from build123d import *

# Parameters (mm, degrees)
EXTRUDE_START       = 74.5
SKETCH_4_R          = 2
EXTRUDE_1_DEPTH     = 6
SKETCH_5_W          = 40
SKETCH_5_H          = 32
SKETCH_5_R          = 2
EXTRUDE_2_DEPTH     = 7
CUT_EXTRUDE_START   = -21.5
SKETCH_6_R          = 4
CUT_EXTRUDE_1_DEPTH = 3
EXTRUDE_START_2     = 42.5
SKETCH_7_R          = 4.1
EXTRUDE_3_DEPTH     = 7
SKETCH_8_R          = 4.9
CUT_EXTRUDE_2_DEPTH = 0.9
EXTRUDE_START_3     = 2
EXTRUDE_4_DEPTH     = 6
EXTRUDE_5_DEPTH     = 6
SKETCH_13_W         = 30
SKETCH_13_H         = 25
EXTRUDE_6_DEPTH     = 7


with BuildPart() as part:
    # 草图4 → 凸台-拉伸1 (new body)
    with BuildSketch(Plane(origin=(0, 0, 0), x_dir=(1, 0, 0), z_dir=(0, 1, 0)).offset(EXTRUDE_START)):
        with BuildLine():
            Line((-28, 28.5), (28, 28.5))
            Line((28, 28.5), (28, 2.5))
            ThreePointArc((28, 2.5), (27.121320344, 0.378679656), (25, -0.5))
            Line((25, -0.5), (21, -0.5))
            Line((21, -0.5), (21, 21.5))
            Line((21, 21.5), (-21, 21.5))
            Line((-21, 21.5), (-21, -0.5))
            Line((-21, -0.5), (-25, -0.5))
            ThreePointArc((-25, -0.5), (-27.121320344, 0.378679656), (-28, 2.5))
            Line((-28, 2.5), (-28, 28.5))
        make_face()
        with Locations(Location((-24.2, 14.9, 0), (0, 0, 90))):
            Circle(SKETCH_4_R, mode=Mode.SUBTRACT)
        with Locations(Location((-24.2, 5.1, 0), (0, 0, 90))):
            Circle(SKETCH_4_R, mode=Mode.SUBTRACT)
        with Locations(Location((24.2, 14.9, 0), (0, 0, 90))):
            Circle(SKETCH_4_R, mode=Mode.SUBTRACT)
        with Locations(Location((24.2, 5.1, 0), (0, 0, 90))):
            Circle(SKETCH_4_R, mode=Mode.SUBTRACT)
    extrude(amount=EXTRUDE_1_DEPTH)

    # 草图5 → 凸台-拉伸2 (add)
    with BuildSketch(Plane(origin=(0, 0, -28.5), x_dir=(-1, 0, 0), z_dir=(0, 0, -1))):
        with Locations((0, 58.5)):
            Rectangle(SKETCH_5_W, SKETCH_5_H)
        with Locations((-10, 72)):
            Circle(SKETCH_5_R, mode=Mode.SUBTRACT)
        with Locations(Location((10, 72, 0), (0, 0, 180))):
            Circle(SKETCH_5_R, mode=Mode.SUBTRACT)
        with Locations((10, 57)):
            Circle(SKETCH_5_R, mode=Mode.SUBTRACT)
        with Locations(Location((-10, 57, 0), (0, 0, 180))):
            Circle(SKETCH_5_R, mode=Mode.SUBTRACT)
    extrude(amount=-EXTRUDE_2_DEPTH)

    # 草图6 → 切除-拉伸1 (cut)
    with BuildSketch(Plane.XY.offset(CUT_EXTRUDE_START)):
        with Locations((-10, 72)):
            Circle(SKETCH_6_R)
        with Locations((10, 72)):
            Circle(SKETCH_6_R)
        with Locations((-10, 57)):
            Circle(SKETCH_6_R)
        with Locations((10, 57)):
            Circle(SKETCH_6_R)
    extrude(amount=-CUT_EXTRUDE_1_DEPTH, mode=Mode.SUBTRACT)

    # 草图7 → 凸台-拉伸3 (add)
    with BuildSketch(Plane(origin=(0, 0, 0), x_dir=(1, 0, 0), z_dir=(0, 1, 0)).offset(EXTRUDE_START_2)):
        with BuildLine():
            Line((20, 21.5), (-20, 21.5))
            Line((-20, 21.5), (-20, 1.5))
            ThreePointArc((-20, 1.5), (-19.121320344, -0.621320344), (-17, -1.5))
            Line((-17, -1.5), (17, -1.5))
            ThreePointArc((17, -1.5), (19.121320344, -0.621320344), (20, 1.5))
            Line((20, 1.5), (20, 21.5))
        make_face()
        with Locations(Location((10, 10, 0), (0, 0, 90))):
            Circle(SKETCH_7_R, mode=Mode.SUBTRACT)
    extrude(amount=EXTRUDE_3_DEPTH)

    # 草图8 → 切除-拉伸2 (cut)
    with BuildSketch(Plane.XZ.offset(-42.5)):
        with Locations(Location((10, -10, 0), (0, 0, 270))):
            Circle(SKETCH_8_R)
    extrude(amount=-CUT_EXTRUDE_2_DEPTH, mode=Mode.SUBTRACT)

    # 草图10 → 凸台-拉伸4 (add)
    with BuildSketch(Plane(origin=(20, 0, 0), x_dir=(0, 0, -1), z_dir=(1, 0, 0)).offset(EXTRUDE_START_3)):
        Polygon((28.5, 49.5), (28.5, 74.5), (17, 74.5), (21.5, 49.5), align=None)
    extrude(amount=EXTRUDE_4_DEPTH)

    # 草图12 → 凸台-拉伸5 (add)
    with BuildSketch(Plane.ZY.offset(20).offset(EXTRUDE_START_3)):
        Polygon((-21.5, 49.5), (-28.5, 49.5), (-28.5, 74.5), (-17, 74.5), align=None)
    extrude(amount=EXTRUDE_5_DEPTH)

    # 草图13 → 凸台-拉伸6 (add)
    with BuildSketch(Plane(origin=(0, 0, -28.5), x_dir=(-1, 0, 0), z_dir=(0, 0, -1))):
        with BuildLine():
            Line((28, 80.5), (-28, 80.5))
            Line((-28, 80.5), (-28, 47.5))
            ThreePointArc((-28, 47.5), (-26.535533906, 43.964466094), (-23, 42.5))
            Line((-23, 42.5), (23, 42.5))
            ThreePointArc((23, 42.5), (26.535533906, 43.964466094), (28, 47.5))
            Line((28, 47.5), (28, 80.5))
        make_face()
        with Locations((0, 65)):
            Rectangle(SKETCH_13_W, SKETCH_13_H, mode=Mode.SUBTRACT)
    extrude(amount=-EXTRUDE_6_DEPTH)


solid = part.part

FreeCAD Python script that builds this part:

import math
import FreeCAD as App
import Part
import Sketcher

V = App.Vector


def add_polygon(sketch, points):
    """Adds a closed chain of lines whose ends are joined by coincident constraints."""
    first, n = sketch.GeometryCount, len(points)
    for a, b in zip(points, points[1:] + points[:1]):
        sketch.addGeometry(Part.LineSegment(App.Vector(*a, 0), App.Vector(*b, 0)), False)
    for i in range(n):
        sketch.addConstraint(Sketcher.Constraint("Coincident", first + i, 2, first + (i + 1) % n, 1))

doc = App.newDocument("Part")
params = doc.addObject("Spreadsheet::Sheet", "Params")
for row, (alias, value) in enumerate([
    ("sketch1_diameter", "4 mm"),
    ("sketch1_radius", "3 mm"),
    ("sketch1_width", "56 mm"),
    ("sketch1_width2", "4 mm"),
    ("sketch1_height", "26 mm"),
    ("pad1_length", "6 mm"),
    ("sketch2_diameter", "4 mm"),
    ("sketch2_width", "40 mm"),
    ("sketch2_height", "32 mm"),
    ("pad2_length", "7 mm"),
    ("sketch3_diameter", "8 mm"),
    ("pocket1_length", "3 mm"),
    ("sketch4_radius", "3 mm"),
    ("sketch4_diameter", "8.2 mm"),
    ("sketch4_width", "40 mm"),
    ("sketch4_height", "20 mm"),
    ("pad3_length", "7 mm"),
    ("sketch5_diameter", "9.8 mm"),
    ("pocket2_length", "0.9 mm"),
    ("sketch6_width", "25 mm"),
    ("sketch6_height", "7 mm"),
    ("sketch6_height2", "11.5 mm"),
    ("pad4_length", "6 mm"),
    ("sketch7_width", "25 mm"),
    ("sketch7_height", "7 mm"),
    ("sketch7_height2", "11.5 mm"),
    ("pad5_length", "6 mm"),
    ("sketch8_radius", "5 mm"),
    ("sketch8_width", "56 mm"),
    ("sketch8_width2", "30 mm"),
    ("sketch8_height", "33 mm"),
    ("sketch8_height2", "25 mm"),
    ("pad6_length", "7 mm"),
], start=1):
    params.set(f"A{row}", alias)
    params.set(f"B{row}", "=" + value)
    params.setAlias(f"B{row}", alias)

body = doc.addObject("PartDesign::Body", "Body")

# Sketch on XZ plane
sketch1 = body.newObject("Sketcher::SketchObject", "Sketch")
sketch1.AttachmentSupport = (doc.getObject("XZ_Plane"), [""])
sketch1.MapMode = "FlatFace"
sketch1.AttachmentOffset = App.Placement(V(0, 0, -74.5), App.Rotation())
sketch1.addGeometry([
    Part.LineSegment(V(28, -28.5, 0), V(-28, -28.5, 0)),  # 0
    Part.LineSegment(V(-28, -28.5, 0), V(-28, -2.5, 0)),  # 1
    Part.ArcOfCircle(Part.Circle(V(-25, -2.5, 0), V(0, 0, 1), 3), math.radians(90), math.radians(180)),  # 2
    Part.LineSegment(V(-25, 0.5, 0), V(-21, 0.5, 0)),  # 3
    Part.LineSegment(V(-21, 0.5, 0), V(-21, -21.5, 0)),  # 4
    Part.LineSegment(V(-21, -21.5, 0), V(21, -21.5, 0)),  # 5
    Part.LineSegment(V(21, -21.5, 0), V(21, 0.5, 0)),  # 6
    Part.LineSegment(V(21, 0.5, 0), V(25, 0.5, 0)),  # 7
    Part.ArcOfCircle(Part.Circle(V(25, -2.5, 0), V(0, 0, 1), 3), math.radians(0), math.radians(90)),  # 8
    Part.LineSegment(V(28, -2.5, 0), V(28, -28.5, 0)),  # 9
    Part.Circle(V(24.2, -5.1, 0), V(0, 0, 1), 2),  # 10
    Part.Circle(V(-24.2, -5.1, 0), V(0, 0, 1), 2),  # 11
    Part.Circle(V(24.2, -14.9, 0), V(0, 0, 1), 2),  # 12
    Part.Circle(V(-24.2, -14.9, 0), V(0, 0, 1), 2),  # 13
], False)
sketch1.addConstraint([
    Sketcher.Constraint("Coincident", 0, 2, 1, 1),
    Sketcher.Constraint("Tangent", 1, 2, 2, 2),
    Sketcher.Constraint("Tangent", 2, 1, 3, 1),
    Sketcher.Constraint("Coincident", 3, 2, 4, 1),
    Sketcher.Constraint("Coincident", 4, 2, 5, 1),
    Sketcher.Constraint("Coincident", 5, 2, 6, 1),
    Sketcher.Constraint("Coincident", 6, 2, 7, 1),
    Sketcher.Constraint("Tangent", 7, 2, 8, 2),
    Sketcher.Constraint("Tangent", 8, 1, 9, 1),
    Sketcher.Constraint("Coincident", 9, 2, 0, 1),
    Sketcher.Constraint("Horizontal", 0),
    Sketcher.Constraint("Vertical", 1),
    Sketcher.Constraint("Horizontal", 3),
    Sketcher.Constraint("Vertical", 4),
    Sketcher.Constraint("Horizontal", 5),
    Sketcher.Constraint("Vertical", 6),
    Sketcher.Constraint("Horizontal", 7),
    Sketcher.Constraint("Vertical", 9),
    Sketcher.Constraint("Equal", 2, 8),
    Sketcher.Constraint("Equal", 10, 11),
    Sketcher.Constraint("Equal", 11, 12),
    Sketcher.Constraint("Equal", 12, 13),
    Sketcher.Constraint("Symmetric", 2, 3, 8, 3, -2),
    Sketcher.Constraint("Symmetric", 10, 3, 11, 3, -2),
    Sketcher.Constraint("Symmetric", 12, 3, 13, 3, -2),
    Sketcher.Constraint("Vertical", 10, 3, 12, 3),
    Sketcher.Constraint("Equal", 3, 7),
    Sketcher.Constraint("Diameter", 10, 4.0),
    Sketcher.Constraint("Radius", 2, 3.0),
    Sketcher.Constraint("DistanceX", 0, 2, 0, 1, 56.0),
    Sketcher.Constraint("DistanceX", 3, 1, 3, 2, 4.0),
    Sketcher.Constraint("DistanceY", 1, 1, 1, 2, 26.0),
    Sketcher.Constraint("DistanceY", 4, 2, 4, 1, 22.0),
    Sketcher.Constraint("DistanceY", 2, 3, -1, 1, 2.5),
    Sketcher.Constraint("DistanceX", -1, 1, 10, 3, 24.2),
    Sketcher.Constraint("DistanceY", 10, 3, -1, 1, 5.1),
    Sketcher.Constraint("DistanceY", 12, 3, -1, 1, 14.9),
])
sketch1.setExpression("Constraints[27]", "Params.sketch1_diameter")
sketch1.setExpression("Constraints[28]", "Params.sketch1_radius")
sketch1.setExpression("Constraints[29]", "Params.sketch1_width")
sketch1.setExpression("Constraints[30]", "Params.sketch1_width2")
sketch1.setExpression("Constraints[31]", "Params.sketch1_height")
pad1 = body.newObject("PartDesign::Pad", "Pad")
pad1.Profile = sketch1
pad1.setExpression("Length", "Params.pad1_length")
pad1.Reversed = True

# Sketch on XY plane
sketch2 = body.newObject("Sketcher::SketchObject", "Sketch001")
sketch2.AttachmentSupport = (doc.getObject("XY_Plane"), [""])
sketch2.MapMode = "FlatFace"
sketch2.AttachmentOffset = App.Placement(V(0, 0, -28.5), App.Rotation())
add_polygon(sketch2, [(20, 74.5), (20, 42.5), (-20, 42.5), (-20, 74.5)])  # lines 0-3
sketch2.addGeometry(Part.Circle(V(10, 57, 0), V(0, 0, 1), 2), False)  # 4
sketch2.addGeometry(Part.Circle(V(-10, 57, 0), V(0, 0, 1), 2), False)  # 5
sketch2.addGeometry(Part.Circle(V(10, 72, 0), V(0, 0, 1), 2), False)  # 6
sketch2.addGeometry(Part.Circle(V(-10, 72, 0), V(0, 0, 1), 2), False)  # 7
sketch2.addConstraint([
    Sketcher.Constraint("Vertical", 0),
    Sketcher.Constraint("Horizontal", 1),
    Sketcher.Constraint("Vertical", 2),
    Sketcher.Constraint("Horizontal", 3),
    Sketcher.Constraint("Equal", 4, 5),
    Sketcher.Constraint("Equal", 5, 6),
    Sketcher.Constraint("Equal", 6, 7),
    Sketcher.Constraint("Symmetric", 4, 3, 5, 3, -2),
    Sketcher.Constraint("Symmetric", 6, 3, 7, 3, -2),
    Sketcher.Constraint("Vertical", 4, 3, 6, 3),
    Sketcher.Constraint("Diameter", 4, 4.0),
    Sketcher.Constraint("DistanceX", 1, 2, 1, 1, 40.0),
    Sketcher.Constraint("DistanceY", 0, 2, 0, 1, 32.0),
    Sketcher.Constraint("DistanceX", -1, 1, 4, 3, 10.0),
    Sketcher.Constraint("DistanceY", -1, 1, 4, 3, 57.0),
    Sketcher.Constraint("DistanceY", -1, 1, 6, 3, 72.0),
    Sketcher.Constraint("DistanceX", -1, 1, 0, 2, 20.0),
    Sketcher.Constraint("DistanceY", -1, 1, 0, 2, 42.5),
])
sketch2.setExpression("Constraints[14]", "Params.sketch2_diameter")
sketch2.setExpression("Constraints[15]", "Params.sketch2_width")
sketch2.setExpression("Constraints[16]", "Params.sketch2_height")
pad2 = body.newObject("PartDesign::Pad", "Pad001")
pad2.Profile = sketch2
pad2.setExpression("Length", "Params.pad2_length")

# Sketch on XY plane
sketch3 = body.newObject("Sketcher::SketchObject", "Sketch002")
sketch3.AttachmentSupport = (doc.getObject("XY_Plane"), [""])
sketch3.MapMode = "FlatFace"
sketch3.AttachmentOffset = App.Placement(V(0, 0, -21.5), App.Rotation())
sketch3.addGeometry([
    Part.Circle(V(-10, 72, 0), V(0, 0, 1), 4),
    Part.Circle(V(10, 72, 0), V(0, 0, 1), 4),
    Part.Circle(V(-10, 57, 0), V(0, 0, 1), 4),
    Part.Circle(V(10, 57, 0), V(0, 0, 1), 4),
], False)
sketch3.addConstraint([
    Sketcher.Constraint("Equal", 0, 1),
    Sketcher.Constraint("Equal", 1, 2),
    Sketcher.Constraint("Equal", 2, 3),
    Sketcher.Constraint("Symmetric", 0, 3, 1, 3, -2),
    Sketcher.Constraint("Symmetric", 2, 3, 3, 3, -2),
    Sketcher.Constraint("Vertical", 0, 3, 2, 3),
    Sketcher.Constraint("Diameter", 0, 8.0),
    Sketcher.Constraint("DistanceX", 0, 3, -1, 1, 10.0),
    Sketcher.Constraint("DistanceY", -1, 1, 0, 3, 72.0),
    Sketcher.Constraint("DistanceY", -1, 1, 2, 3, 57.0),
])
sketch3.setExpression("Constraints[6]", "Params.sketch3_diameter")
pocket1 = body.newObject("PartDesign::Pocket", "Pocket")
pocket1.Profile = sketch3
pocket1.setExpression("Length", "Params.pocket1_length")

# Sketch on XZ plane
sketch4 = body.newObject("Sketcher::SketchObject", "Sketch003")
sketch4.AttachmentSupport = (doc.getObject("XZ_Plane"), [""])
sketch4.MapMode = "FlatFace"
sketch4.AttachmentOffset = App.Placement(V(0, 0, -42.5), App.Rotation())
sketch4.addGeometry([
    Part.LineSegment(V(20, -21.5, 0), V(-20, -21.5, 0)),  # 0
    Part.LineSegment(V(-20, -21.5, 0), V(-20, -1.5, 0)),  # 1
    Part.ArcOfCircle(Part.Circle(V(-17, -1.5, 0), V(0, 0, 1), 3), math.radians(90), math.radians(180)),  # 2
    Part.LineSegment(V(-17, 1.5, 0), V(17, 1.5, 0)),  # 3
    Part.ArcOfCircle(Part.Circle(V(17, -1.5, 0), V(0, 0, 1), 3), math.radians(0), math.radians(90)),  # 4
    Part.LineSegment(V(20, -1.5, 0), V(20, -21.5, 0)),  # 5
    Part.Circle(V(10, -10, 0), V(0, 0, 1), 4.1),  # 6
], False)
sketch4.addConstraint([
    Sketcher.Constraint("Coincident", 0, 2, 1, 1),
    Sketcher.Constraint("Tangent", 1, 2, 2, 2),
    Sketcher.Constraint("Tangent", 2, 1, 3, 1),
    Sketcher.Constraint("Tangent", 3, 2, 4, 2),
    Sketcher.Constraint("Tangent", 4, 1, 5, 1),
    Sketcher.Constraint("Coincident", 5, 2, 0, 1),
    Sketcher.Constraint("Horizontal", 0),
    Sketcher.Constraint("Vertical", 1),
    Sketcher.Constraint("Horizontal", 3),
    Sketcher.Constraint("Vertical", 5),
    Sketcher.Constraint("Equal", 2, 4),
    Sketcher.Constraint("Radius", 2, 3.0),
    Sketcher.Constraint("Diameter", 6, 8.2),
    Sketcher.Constraint("DistanceX", 0, 2, 0, 1, 40.0),
    Sketcher.Constraint("DistanceY", 1, 1, 1, 2, 20.0),
    Sketcher.Constraint("DistanceX", 2, 3, -1, 1, 17.0),
    Sketcher.Constraint("DistanceX", -1, 1, 6, 3, 10.0),
    Sketcher.Constraint("DistanceY", 6, 3, -1, 1, 10.0),
    Sketcher.Constraint("DistanceY", 2, 3, -1, 1, 1.5),
])
sketch4.setExpression("Constraints[11]", "Params.sketch4_radius")
sketch4.setExpression("Constraints[12]", "Params.sketch4_diameter")
sketch4.setExpression("Constraints[13]", "Params.sketch4_width")
sketch4.setExpression("Constraints[14]", "Params.sketch4_height")
pad3 = body.newObject("PartDesign::Pad", "Pad002")
pad3.Profile = sketch4
pad3.setExpression("Length", "Params.pad3_length")
pad3.Reversed = True

# Sketch on XZ plane
sketch5 = body.newObject("Sketcher::SketchObject", "Sketch004")
sketch5.AttachmentSupport = (doc.getObject("XZ_Plane"), [""])
sketch5.MapMode = "FlatFace"
sketch5.AttachmentOffset = App.Placement(V(0, 0, -42.5), App.Rotation())
sketch5.addGeometry(Part.Circle(V(10, -10, 0), V(0, 0, 1), 4.9), False)
sketch5.addConstraint([
    Sketcher.Constraint("Diameter", 0, 9.8),
    Sketcher.Constraint("DistanceX", -1, 1, 0, 3, 10.0),
    Sketcher.Constraint("DistanceY", 0, 3, -1, 1, 10.0),
])
sketch5.setExpression("Constraints[0]", "Params.sketch5_diameter")
pocket2 = body.newObject("PartDesign::Pocket", "Pocket001")
pocket2.Profile = sketch5
pocket2.setExpression("Length", "Params.pocket2_length")

# Sketch on YZ plane
sketch6 = body.newObject("Sketcher::SketchObject", "Sketch005")
sketch6.AttachmentSupport = (doc.getObject("YZ_Plane"), [""])
sketch6.MapMode = "FlatFace"
sketch6.AttachmentOffset = App.Placement(V(0, 0, 22), App.Rotation())
add_polygon(sketch6, [(49.5, -28.5), (74.5, -28.5), (74.5, -17), (49.5, -21.5)])  # lines 0-3
sketch6.addConstraint([
    Sketcher.Constraint("Horizontal", 0),
    Sketcher.Constraint("Vertical", 1),
    Sketcher.Constraint("Vertical", 3),
    Sketcher.Constraint("DistanceX", 0, 1, 0, 2, 25.0),
    Sketcher.Constraint("DistanceY", 3, 2, 3, 1, 7.0),
    Sketcher.Constraint("DistanceY", 1, 1, 1, 2, 11.5),
    Sketcher.Constraint("DistanceY", 1, 2, -1, 1, 17.0),
    Sketcher.Constraint("DistanceX", -1, 1, 0, 2, 74.5),
])
sketch6.setExpression("Constraints[7]", "Params.sketch6_width")
sketch6.setExpression("Constraints[8]", "Params.sketch6_height")
sketch6.setExpression("Constraints[9]", "Params.sketch6_height2")
pad4 = body.newObject("PartDesign::Pad", "Pad003")
pad4.Profile = sketch6
pad4.setExpression("Length", "Params.pad4_length")

# Sketch on YZ plane
sketch7 = body.newObject("Sketcher::SketchObject", "Sketch006")
sketch7.AttachmentSupport = (doc.getObject("YZ_Plane"), [""])
sketch7.MapMode = "FlatFace"
sketch7.AttachmentOffset = App.Placement(V(0, 0, -22), App.Rotation())
add_polygon(sketch7, [(49.5, -28.5), (49.5, -21.5), (74.5, -17), (74.5, -28.5)])  # lines 0-3
sketch7.addConstraint([
    Sketcher.Constraint("Vertical", 0),
    Sketcher.Constraint("Vertical", 2),
    Sketcher.Constraint("Horizontal", 3),
    Sketcher.Constraint("DistanceX", 3, 2, 3, 1, 25.0),
    Sketcher.Constraint("DistanceY", 0, 1, 0, 2, 7.0),
    Sketcher.Constraint("DistanceY", 2, 2, 2, 1, 11.5),
    Sketcher.Constraint("DistanceY", 1, 2, -1, 1, 17.0),
    Sketcher.Constraint("DistanceX", -1, 1, 0, 2, 49.5),
])
sketch7.setExpression("Constraints[7]", "Params.sketch7_width")
sketch7.setExpression("Constraints[8]", "Params.sketch7_height")
sketch7.setExpression("Constraints[9]", "Params.sketch7_height2")
pad5 = body.newObject("PartDesign::Pad", "Pad004")
pad5.Profile = sketch7
pad5.setExpression("Length", "Params.pad5_length")
pad5.Reversed = True

# Sketch on XY plane
sketch8 = body.newObject("Sketcher::SketchObject", "Sketch007")
sketch8.AttachmentSupport = (doc.getObject("XY_Plane"), [""])
sketch8.MapMode = "FlatFace"
sketch8.AttachmentOffset = App.Placement(V(0, 0, -28.5), App.Rotation())
sketch8.addGeometry(Part.LineSegment(V(-28, 80.5, 0), V(28, 80.5, 0)), False)  # 0
sketch8.addGeometry(Part.LineSegment(V(28, 80.5, 0), V(28, 47.5, 0)), False)  # 1
sketch8.addGeometry(Part.ArcOfCircle(Part.Circle(V(23, 47.5, 0), V(0, 0, 1), 5), math.radians(-90), math.radians(0)), False)  # 2
sketch8.addGeometry(Part.LineSegment(V(23, 42.5, 0), V(-23, 42.5, 0)), False)  # 3
sketch8.addGeometry(Part.ArcOfCircle(Part.Circle(V(-23, 47.5, 0), V(0, 0, 1), 5), math.radians(180), math.radians(270)), False)  # 4
sketch8.addGeometry(Part.LineSegment(V(-28, 47.5, 0), V(-28, 80.5, 0)), False)  # 5
add_polygon(sketch8, [(-15, 52.5), (15, 52.5), (15, 77.5), (-15, 77.5)])  # lines 6-9
sketch8.addConstraint([
    Sketcher.Constraint("Coincident", 0, 2, 1, 1),
    Sketcher.Constraint("Tangent", 1, 2, 2, 2),
    Sketcher.Constraint("Tangent", 2, 1, 3, 1),
    Sketcher.Constraint("Tangent", 3, 2, 4, 2),
    Sketcher.Constraint("Tangent", 4, 1, 5, 1),
    Sketcher.Constraint("Coincident", 5, 2, 0, 1),
    Sketcher.Constraint("Horizontal", 0),
    Sketcher.Constraint("Vertical", 1),
    Sketcher.Constraint("Horizontal", 3),
    Sketcher.Constraint("Vertical", 5),
    Sketcher.Constraint("Horizontal", 6),
    Sketcher.Constraint("Vertical", 7),
    Sketcher.Constraint("Horizontal", 8),
    Sketcher.Constraint("Vertical", 9),
    Sketcher.Constraint("Equal", 2, 4),
    Sketcher.Constraint("Radius", 2, 5.0),
    Sketcher.Constraint("DistanceX", 0, 1, 0, 2, 56.0),
    Sketcher.Constraint("DistanceX", 6, 1, 6, 2, 30.0),
    Sketcher.Constraint("DistanceY", 1, 2, 1, 1, 33.0),
    Sketcher.Constraint("DistanceY", 7, 1, 7, 2, 25.0),
    Sketcher.Constraint("DistanceX", -1, 1, 2, 3, 23.0),
    Sketcher.Constraint("DistanceX", -1, 1, 6, 2, 15.0),
    Sketcher.Constraint("DistanceY", 2, 3, 6, 2, 5.0),
    Sketcher.Constraint("DistanceY", -1, 1, 2, 3, 47.5),
])
sketch8.setExpression("Constraints[19]", "Params.sketch8_radius")
sketch8.setExpression("Constraints[20]", "Params.sketch8_width")
sketch8.setExpression("Constraints[21]", "Params.sketch8_width2")
sketch8.setExpression("Constraints[22]", "Params.sketch8_height")
sketch8.setExpression("Constraints[23]", "Params.sketch8_height2")
pad6 = body.newObject("PartDesign::Pad", "Pad005")
pad6.Profile = sketch8
pad6.setExpression("Length", "Params.pad6_length")

doc.recompute()
